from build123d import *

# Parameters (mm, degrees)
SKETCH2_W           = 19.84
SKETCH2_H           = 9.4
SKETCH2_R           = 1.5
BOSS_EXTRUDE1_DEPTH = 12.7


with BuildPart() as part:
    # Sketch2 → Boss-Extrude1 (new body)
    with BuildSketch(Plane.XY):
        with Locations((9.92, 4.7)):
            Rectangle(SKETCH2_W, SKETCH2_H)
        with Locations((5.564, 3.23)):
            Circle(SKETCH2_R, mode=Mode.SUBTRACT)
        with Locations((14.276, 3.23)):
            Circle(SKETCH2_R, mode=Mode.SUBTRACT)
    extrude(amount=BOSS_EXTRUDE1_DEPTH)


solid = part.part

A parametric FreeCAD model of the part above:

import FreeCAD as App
import Part
import Sketcher

doc = App.newDocument("Part")
body = doc.addObject("PartDesign::Body", "Body")

sketch1 = body.newObject("Sketcher::SketchObject", "Sketch")
sketch1.AttachmentSupport = (doc.getObject("XY_Plane"), [""])
sketch1.MapMode = "FlatFace"
sketch1.addGeometry([
    Part.LineSegment(App.Vector(0, 9.4, 0), App.Vector(0, 0, 0)),
    Part.LineSegment(App.Vector(0, 0, 0), App.Vector(19.8, 0, 0)),
    Part.LineSegment(App.Vector(19.8, 0, 0), App.Vector(19.8, 9.4, 0)),
    Part.LineSegment(App.Vector(19.8, 9.4, 0), App.Vector(0, 9.4, 0)),
    Part.Circle(App.Vector(5.6, 3.2, 0), App.Vector(0, 0, 1), 1.5),
    Part.Circle(App.Vector(14.3, 3.2, 0), App.Vector(0, 0, 1), 1.5),
], False)
sketch1.addConstraint([
    Sketcher.Constraint("Coincident", 0, 2, 1, 1),
    Sketcher.Constraint("Coincident", 1, 2, 2, 1),
    Sketcher.Constraint("Coincident", 2, 2, 3, 1),
    Sketcher.Constraint("Coincident", 3, 2, 0, 1),
    Sketcher.Constraint("Vertical", 0),
    Sketcher.Constraint("Horizontal", 1),
    Sketcher.Constraint("Vertical", 2),
    Sketcher.Constraint("Horizontal", 3),
    Sketcher.Constraint("Coincident", 0, 2, -1, 1),
    Sketcher.Constraint("Equal", 4, 5),
    Sketcher.Constraint("Horizontal", 4, 3, 5, 3),
    Sketcher.Constraint("Diameter", 4, 3.0),
    Sketcher.Constraint("DistanceY", 0, 2, 0, 1, 9.4),
    Sketcher.Constraint("DistanceX", 1, 1, 1, 2, 19.84),
    Sketcher.Constraint("DistanceY", -1, 1, 4, 3, 3.23),
    Sketcher.Constraint("DistanceX", -1, 1, 4, 3, 5.564),
    Sketcher.Constraint("DistanceX", -1, 1, 5, 3, 14.276),
])
pad1 = body.newObject("PartDesign::Pad", "Pad")
pad1.Profile = sketch1
pad1.Length = 12.7

doc.recompute()
